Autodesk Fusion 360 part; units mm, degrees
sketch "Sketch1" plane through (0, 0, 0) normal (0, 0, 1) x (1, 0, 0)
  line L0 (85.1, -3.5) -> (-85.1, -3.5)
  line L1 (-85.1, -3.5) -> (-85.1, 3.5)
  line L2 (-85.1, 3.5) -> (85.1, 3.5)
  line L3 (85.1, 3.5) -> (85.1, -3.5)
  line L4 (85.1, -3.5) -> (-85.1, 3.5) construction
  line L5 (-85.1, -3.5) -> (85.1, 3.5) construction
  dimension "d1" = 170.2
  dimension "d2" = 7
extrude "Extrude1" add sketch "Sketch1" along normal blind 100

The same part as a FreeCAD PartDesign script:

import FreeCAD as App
import Part
import Sketcher
from FreeCAD import Vector

doc = App.newDocument("Part")
body = doc.addObject("PartDesign::Body", "Body")

sketch1 = doc.addObject("Sketcher::SketchObject", "Sketch")
body.addObject(sketch1)
sketch1.AttachmentSupport = (doc.XY_Plane, [""])
sketch1.MapMode = "FlatFace"
sketch1.addGeometry([
    Part.LineSegment(Vector(-85.1, -3.5, 0), Vector(85.1, -3.5, 0)),
    Part.LineSegment(Vector(85.1, -3.5, 0), Vector(85.1, 3.5, 0)),
    Part.LineSegment(Vector(85.1, 3.5, 0), Vector(-85.1, 3.5, 0)),
    Part.LineSegment(Vector(-85.1, 3.5, 0), Vector(-85.1, -3.5, 0)),
], False)
sketch1.addConstraint([
    Sketcher.Constraint("Coincident", 0, 2, 1, 1),
    Sketcher.Constraint("Coincident", 1, 2, 2, 1),
    Sketcher.Constraint("Coincident", 2, 2, 3, 1),
    Sketcher.Constraint("Coincident", 3, 2, 0, 1),
    Sketcher.Constraint("Horizontal", 0),
    Sketcher.Constraint("Vertical", 1),
    Sketcher.Constraint("Horizontal", 2),
    Sketcher.Constraint("Vertical", 3),
    Sketcher.Constraint("Symmetric", 0, 2, 2, 2, -1, 1),
    Sketcher.Constraint("DistanceY", 1, 1, 1, 2, 7.0),
    Sketcher.Constraint("DistanceX", 0, 1, 0, 2, 170.2),
])
pad1 = doc.addObject("PartDesign::Pad", "Pad")
body.addObject(pad1)
pad1.Profile = sketch1
pad1.Length = 100

doc.recompute()
